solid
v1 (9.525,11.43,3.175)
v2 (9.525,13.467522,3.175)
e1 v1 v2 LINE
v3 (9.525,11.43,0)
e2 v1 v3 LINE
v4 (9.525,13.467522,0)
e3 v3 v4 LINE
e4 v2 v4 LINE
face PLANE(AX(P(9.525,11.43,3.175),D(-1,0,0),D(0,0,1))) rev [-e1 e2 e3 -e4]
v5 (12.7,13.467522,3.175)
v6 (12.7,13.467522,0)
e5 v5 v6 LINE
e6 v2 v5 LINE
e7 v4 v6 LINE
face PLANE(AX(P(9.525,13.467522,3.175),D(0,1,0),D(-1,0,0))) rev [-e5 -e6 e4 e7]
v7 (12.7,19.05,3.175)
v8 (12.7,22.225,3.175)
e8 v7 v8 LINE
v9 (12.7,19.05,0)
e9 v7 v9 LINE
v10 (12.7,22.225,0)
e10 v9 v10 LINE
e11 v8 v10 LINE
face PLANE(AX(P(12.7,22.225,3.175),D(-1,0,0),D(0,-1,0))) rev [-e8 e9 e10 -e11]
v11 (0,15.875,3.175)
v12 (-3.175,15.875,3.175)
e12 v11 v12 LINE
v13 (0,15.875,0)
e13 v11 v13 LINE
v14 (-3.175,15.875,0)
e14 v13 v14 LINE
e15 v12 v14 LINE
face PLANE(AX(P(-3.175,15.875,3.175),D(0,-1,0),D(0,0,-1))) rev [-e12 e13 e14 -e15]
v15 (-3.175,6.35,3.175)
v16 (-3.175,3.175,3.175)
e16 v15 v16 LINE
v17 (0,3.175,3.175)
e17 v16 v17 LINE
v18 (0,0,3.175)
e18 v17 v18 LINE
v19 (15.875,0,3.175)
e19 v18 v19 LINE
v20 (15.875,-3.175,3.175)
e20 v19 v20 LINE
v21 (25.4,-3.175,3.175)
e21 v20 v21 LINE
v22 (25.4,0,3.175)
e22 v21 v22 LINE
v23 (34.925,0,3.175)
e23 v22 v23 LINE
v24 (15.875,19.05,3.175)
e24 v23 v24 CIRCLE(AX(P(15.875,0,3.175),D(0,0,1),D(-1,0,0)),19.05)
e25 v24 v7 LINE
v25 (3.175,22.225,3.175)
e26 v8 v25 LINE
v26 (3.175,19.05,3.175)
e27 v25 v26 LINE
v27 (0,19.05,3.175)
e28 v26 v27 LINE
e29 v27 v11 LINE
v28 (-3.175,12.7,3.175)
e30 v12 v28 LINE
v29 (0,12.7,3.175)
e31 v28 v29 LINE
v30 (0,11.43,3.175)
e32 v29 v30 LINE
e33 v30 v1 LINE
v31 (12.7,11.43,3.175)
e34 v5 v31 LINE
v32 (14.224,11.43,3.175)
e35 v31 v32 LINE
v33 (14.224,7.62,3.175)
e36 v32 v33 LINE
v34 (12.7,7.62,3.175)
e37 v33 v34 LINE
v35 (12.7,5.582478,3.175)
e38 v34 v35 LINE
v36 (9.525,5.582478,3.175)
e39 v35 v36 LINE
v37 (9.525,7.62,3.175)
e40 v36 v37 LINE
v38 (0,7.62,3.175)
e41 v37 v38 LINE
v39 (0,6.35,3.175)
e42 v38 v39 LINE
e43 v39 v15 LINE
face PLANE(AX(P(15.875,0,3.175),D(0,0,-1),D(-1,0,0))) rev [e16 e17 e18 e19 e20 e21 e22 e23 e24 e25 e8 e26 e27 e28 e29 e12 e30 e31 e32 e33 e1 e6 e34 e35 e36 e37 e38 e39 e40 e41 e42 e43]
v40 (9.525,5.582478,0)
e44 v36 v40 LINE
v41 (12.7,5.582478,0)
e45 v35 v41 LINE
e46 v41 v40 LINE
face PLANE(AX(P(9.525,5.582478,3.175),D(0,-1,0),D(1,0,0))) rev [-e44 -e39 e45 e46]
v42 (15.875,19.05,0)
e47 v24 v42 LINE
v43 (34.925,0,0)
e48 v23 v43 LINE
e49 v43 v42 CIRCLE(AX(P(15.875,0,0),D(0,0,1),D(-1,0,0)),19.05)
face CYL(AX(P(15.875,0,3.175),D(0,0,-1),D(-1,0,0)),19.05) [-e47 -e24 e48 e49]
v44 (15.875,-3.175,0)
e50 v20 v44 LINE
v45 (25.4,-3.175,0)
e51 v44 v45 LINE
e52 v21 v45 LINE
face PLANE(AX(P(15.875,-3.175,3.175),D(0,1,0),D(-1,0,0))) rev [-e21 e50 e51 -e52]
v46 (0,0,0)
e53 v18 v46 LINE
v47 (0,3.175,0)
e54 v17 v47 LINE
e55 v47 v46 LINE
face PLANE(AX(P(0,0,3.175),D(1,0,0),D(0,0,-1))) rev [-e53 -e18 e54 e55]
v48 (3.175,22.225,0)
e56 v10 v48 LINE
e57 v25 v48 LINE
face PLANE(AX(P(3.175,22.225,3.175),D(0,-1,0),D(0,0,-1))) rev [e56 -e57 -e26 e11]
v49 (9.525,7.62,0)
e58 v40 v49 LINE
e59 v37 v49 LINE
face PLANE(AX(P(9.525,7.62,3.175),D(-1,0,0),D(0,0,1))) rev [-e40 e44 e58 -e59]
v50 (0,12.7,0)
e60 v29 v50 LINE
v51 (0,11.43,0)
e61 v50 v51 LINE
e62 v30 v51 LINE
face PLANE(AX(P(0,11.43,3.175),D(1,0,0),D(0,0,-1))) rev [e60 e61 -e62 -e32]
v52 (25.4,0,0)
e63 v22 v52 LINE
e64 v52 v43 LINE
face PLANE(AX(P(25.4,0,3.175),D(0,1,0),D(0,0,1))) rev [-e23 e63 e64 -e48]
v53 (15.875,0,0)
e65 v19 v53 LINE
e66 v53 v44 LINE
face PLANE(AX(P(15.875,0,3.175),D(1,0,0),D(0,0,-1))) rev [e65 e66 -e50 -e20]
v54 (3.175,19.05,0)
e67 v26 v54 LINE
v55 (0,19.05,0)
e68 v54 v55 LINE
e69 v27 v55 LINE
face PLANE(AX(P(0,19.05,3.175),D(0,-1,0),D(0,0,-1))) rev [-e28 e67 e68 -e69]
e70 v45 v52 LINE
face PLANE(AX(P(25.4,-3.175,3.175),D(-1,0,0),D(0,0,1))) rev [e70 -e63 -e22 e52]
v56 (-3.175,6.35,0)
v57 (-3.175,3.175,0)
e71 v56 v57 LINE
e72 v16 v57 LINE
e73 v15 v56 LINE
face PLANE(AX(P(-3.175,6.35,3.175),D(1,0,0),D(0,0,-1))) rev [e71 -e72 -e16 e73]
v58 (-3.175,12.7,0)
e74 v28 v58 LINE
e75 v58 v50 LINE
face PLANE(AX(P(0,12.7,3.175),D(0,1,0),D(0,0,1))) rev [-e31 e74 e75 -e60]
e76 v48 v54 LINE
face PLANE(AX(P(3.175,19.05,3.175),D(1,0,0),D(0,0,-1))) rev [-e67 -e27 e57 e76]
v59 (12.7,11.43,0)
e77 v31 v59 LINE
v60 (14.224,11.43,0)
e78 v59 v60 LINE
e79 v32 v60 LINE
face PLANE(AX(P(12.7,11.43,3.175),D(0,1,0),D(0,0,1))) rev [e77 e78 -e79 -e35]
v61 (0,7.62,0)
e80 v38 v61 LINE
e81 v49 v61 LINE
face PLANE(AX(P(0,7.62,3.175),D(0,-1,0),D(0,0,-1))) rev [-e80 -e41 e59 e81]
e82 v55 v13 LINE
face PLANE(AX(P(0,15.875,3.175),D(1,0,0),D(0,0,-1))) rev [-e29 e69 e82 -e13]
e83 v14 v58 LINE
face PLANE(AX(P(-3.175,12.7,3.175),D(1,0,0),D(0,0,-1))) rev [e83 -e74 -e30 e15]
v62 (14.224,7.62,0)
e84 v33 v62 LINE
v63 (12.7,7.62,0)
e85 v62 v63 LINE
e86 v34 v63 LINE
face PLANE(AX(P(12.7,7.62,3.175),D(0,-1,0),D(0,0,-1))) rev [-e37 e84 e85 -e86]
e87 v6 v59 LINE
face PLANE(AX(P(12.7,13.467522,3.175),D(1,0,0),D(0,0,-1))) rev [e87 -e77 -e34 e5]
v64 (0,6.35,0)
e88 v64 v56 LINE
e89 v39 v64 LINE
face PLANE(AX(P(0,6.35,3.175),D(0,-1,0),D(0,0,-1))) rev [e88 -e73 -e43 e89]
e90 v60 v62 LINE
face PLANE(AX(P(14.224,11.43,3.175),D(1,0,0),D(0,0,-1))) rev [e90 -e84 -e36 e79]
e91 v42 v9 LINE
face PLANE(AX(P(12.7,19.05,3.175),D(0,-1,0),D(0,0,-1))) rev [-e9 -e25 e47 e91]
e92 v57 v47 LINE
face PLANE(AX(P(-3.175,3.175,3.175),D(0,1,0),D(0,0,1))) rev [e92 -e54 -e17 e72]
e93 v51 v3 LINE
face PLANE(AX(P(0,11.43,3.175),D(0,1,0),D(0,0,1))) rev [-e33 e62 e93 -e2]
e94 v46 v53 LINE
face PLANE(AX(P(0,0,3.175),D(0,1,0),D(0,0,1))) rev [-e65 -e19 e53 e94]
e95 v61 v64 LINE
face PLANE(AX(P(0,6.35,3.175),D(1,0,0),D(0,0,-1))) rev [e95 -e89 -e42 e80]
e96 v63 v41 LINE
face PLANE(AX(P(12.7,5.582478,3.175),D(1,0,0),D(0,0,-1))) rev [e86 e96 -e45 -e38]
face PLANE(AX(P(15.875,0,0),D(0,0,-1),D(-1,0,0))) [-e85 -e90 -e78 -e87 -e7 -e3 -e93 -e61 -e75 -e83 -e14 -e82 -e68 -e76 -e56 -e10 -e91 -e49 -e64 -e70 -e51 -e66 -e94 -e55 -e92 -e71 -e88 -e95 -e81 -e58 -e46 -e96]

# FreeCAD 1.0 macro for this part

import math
import FreeCAD as App
import Part
import Sketcher
from FreeCAD import Vector
Q = App.Units.Quantity

doc = App.newDocument("Part")
body = doc.addObject("PartDesign::Body", "Body")

# Sketch on XY plane
sketch1 = body.newObject("Sketcher::SketchObject", "Sketch")
sketch1.AttachmentSupport = (doc.getObject("XY_Plane"), [""])
sketch1.MapMode = "FlatFace"
sketch1.addGeometry(Part.LineSegment(Vector(0, 3.2, 0), Vector(0, 0, 0)), False)
sketch1.addGeometry(Part.LineSegment(Vector(0, 0, 0), Vector(15.9, 0, 0)), False)
sketch1.addGeometry(Part.LineSegment(Vector(15.9, 0, 0), Vector(15.9, -3.2, 0)), False)
sketch1.addGeometry(Part.LineSegment(Vector(15.9, -3.2, 0), Vector(25.4, -3.2, 0)), False)
sketch1.addGeometry(Part.LineSegment(Vector(25.4, -3.2, 0), Vector(25.4, 0, 0)), False)
sketch1.addGeometry(Part.LineSegment(Vector(25.4, 0, 0), Vector(34.9, 0, 0)), False)
sketch1.addGeometry(Part.ArcOfCircle(Part.Circle(Vector(15.9, 0, 0), Vector(0, 0, 1), 19), math.radians(0), math.radians(90)), False)
sketch1.addGeometry(Part.LineSegment(Vector(15.9, 19.1, 0), Vector(12.7, 19.1, 0)), False)
sketch1.addGeometry(Part.LineSegment(Vector(12.7, 19.1, 0), Vector(12.7, 22.2, 0)), False)
sketch1.addGeometry(Part.LineSegment(Vector(12.7, 22.2, 0), Vector(3.2, 22.2, 0)), False)
sketch1.addGeometry(Part.LineSegment(Vector(3.2, 22.2, 0), Vector(3.2, 19.1, 0)), False)
sketch1.addGeometry(Part.LineSegment(Vector(3.2, 19.1, 0), Vector(0, 19.1, 0)), False)
sketch1.addGeometry(Part.LineSegment(Vector(0, 19.1, 0), Vector(0, 15.9, 0)), False)
sketch1.addGeometry(Part.LineSegment(Vector(0, 15.9, 0), Vector(-3.2, 15.9, 0)), False)
sketch1.addGeometry(Part.LineSegment(Vector(-3.2, 15.9, 0), Vector(-3.2, 12.7, 0)), False)
sketch1.addGeometry(Part.LineSegment(Vector(-3.2, 12.7, 0), Vector(0, 12.7, 0)), False)
sketch1.addGeometry(Part.LineSegment(Vector(0, 12.7, 0), Vector(0, 11.4, 0)), False)
sketch1.addGeometry(Part.LineSegment(Vector(0, 11.4, 0), Vector(9.5, 11.4, 0)), False)
sketch1.addGeometry(Part.LineSegment(Vector(9.5, 11.4, 0), Vector(9.5, 13.5, 0)), False)
sketch1.addGeometry(Part.LineSegment(Vector(9.5, 13.5, 0), Vector(12.7, 13.5, 0)), False)
sketch1.addGeometry(Part.LineSegment(Vector(12.7, 13.5, 0), Vector(12.7, 11.4, 0)), False)
sketch1.addGeometry(Part.LineSegment(Vector(12.7, 11.4, 0), Vector(14.2, 11.4, 0)), False)
sketch1.addGeometry(Part.LineSegment(Vector(14.2, 11.4, 0), Vector(14.2, 7.6, 0)), False)
sketch1.addGeometry(Part.LineSegment(Vector(14.2, 7.6, 0), Vector(12.7, 7.6, 0)), False)
sketch1.addGeometry(Part.LineSegment(Vector(12.7, 7.6, 0), Vector(12.7, 5.6, 0)), False)
sketch1.addGeometry(Part.LineSegment(Vector(12.7, 5.6, 0), Vector(9.5, 5.6, 0)), False)
sketch1.addGeometry(Part.LineSegment(Vector(9.5, 5.6, 0), Vector(9.5, 7.6, 0)), False)
sketch1.addGeometry(Part.LineSegment(Vector(9.5, 7.6, 0), Vector(0, 7.6, 0)), False)
sketch1.addGeometry(Part.LineSegment(Vector(0, 7.6, 0), Vector(0, 6.3, 0)), False)
sketch1.addGeometry(Part.LineSegment(Vector(0, 6.3, 0), Vector(-3.2, 6.3, 0)), False)
sketch1.addGeometry(Part.LineSegment(Vector(-3.2, 6.3, 0), Vector(-3.2, 3.2, 0)), False)
sketch1.addGeometry(Part.LineSegment(Vector(-3.2, 3.2, 0), Vector(0, 3.2, 0)), False)
sketch1.addConstraint(Sketcher.Constraint("Coincident", 0, 2, 1, 1))
sketch1.addConstraint(Sketcher.Constraint("Coincident", 1, 2, 2, 1))
sketch1.addConstraint(Sketcher.Constraint("Coincident", 2, 2, 3, 1))
sketch1.addConstraint(Sketcher.Constraint("Coincident", 3, 2, 4, 1))
sketch1.addConstraint(Sketcher.Constraint("Coincident", 4, 2, 5, 1))
sketch1.addConstraint(Sketcher.Constraint("Coincident", 5, 2, 6, 1))
sketch1.addConstraint(Sketcher.Constraint("Tangent", 6, 2, 7, 1))
sketch1.addConstraint(Sketcher.Constraint("Coincident", 7, 2, 8, 1))
sketch1.addConstraint(Sketcher.Constraint("Coincident", 8, 2, 9, 1))
sketch1.addConstraint(Sketcher.Constraint("Coincident", 9, 2, 10, 1))
sketch1.addConstraint(Sketcher.Constraint("Coincident", 10, 2, 11, 1))
sketch1.addConstraint(Sketcher.Constraint("Coincident", 11, 2, 12, 1))
sketch1.addConstraint(Sketcher.Constraint("Coincident", 12, 2, 13, 1))
sketch1.addConstraint(Sketcher.Constraint("Coincident", 13, 2, 14, 1))
sketch1.addConstraint(Sketcher.Constraint("Coincident", 14, 2, 15, 1))
sketch1.addConstraint(Sketcher.Constraint("Coincident", 15, 2, 16, 1))
sketch1.addConstraint(Sketcher.Constraint("Coincident", 16, 2, 17, 1))
sketch1.addConstraint(Sketcher.Constraint("Coincident", 17, 2, 18, 1))
sketch1.addConstraint(Sketcher.Constraint("Coincident", 18, 2, 19, 1))
sketch1.addConstraint(Sketcher.Constraint("Coincident", 19, 2, 20, 1))
sketch1.addConstraint(Sketcher.Constraint("Coincident", 20, 2, 21, 1))
sketch1.addConstraint(Sketcher.Constraint("Coincident", 21, 2, 22, 1))
sketch1.addConstraint(Sketcher.Constraint("Coincident", 22, 2, 23, 1))
sketch1.addConstraint(Sketcher.Constraint("Coincident", 23, 2, 24, 1))
sketch1.addConstraint(Sketcher.Constraint("Coincident", 24, 2, 25, 1))
sketch1.addConstraint(Sketcher.Constraint("Coincident", 25, 2, 26, 1))
sketch1.addConstraint(Sketcher.Constraint("Coincident", 26, 2, 27, 1))
sketch1.addConstraint(Sketcher.Constraint("Coincident", 27, 2, 28, 1))
sketch1.addConstraint(Sketcher.Constraint("Coincident", 28, 2, 29, 1))
sketch1.addConstraint(Sketcher.Constraint("Coincident", 29, 2, 30, 1))
sketch1.addConstraint(Sketcher.Constraint("Coincident", 30, 2, 31, 1))
sketch1.addConstraint(Sketcher.Constraint("Coincident", 31, 2, 0, 1))
sketch1.addConstraint(Sketcher.Constraint("Vertical", 0))
sketch1.addConstraint(Sketcher.Constraint("Horizontal", 1))
sketch1.addConstraint(Sketcher.Constraint("Vertical", 2))
sketch1.addConstraint(Sketcher.Constraint("Horizontal", 3))
sketch1.addConstraint(Sketcher.Constraint("Vertical", 4))
sketch1.addConstraint(Sketcher.Constraint("Horizontal", 5))
sketch1.addConstraint(Sketcher.Constraint("Horizontal", 7))
sketch1.addConstraint(Sketcher.Constraint("Vertical", 8))
sketch1.addConstraint(Sketcher.Constraint("Horizontal", 9))
sketch1.addConstraint(Sketcher.Constraint("Vertical", 10))
sketch1.addConstraint(Sketcher.Constraint("Horizontal", 11))
sketch1.addConstraint(Sketcher.Constraint("Vertical", 12))
sketch1.addConstraint(Sketcher.Constraint("Horizontal", 13))
sketch1.addConstraint(Sketcher.Constraint("Vertical", 14))
sketch1.addConstraint(Sketcher.Constraint("Horizontal", 15))
sketch1.addConstraint(Sketcher.Constraint("Vertical", 16))
sketch1.addConstraint(Sketcher.Constraint("Horizontal", 17))
sketch1.addConstraint(Sketcher.Constraint("Vertical", 18))
sketch1.addConstraint(Sketcher.Constraint("Horizontal", 19))
sketch1.addConstraint(Sketcher.Constraint("Vertical", 20))
sketch1.addConstraint(Sketcher.Constraint("Horizontal", 21))
sketch1.addConstraint(Sketcher.Constraint("Vertical", 22))
sketch1.addConstraint(Sketcher.Constraint("Horizontal", 23))
sketch1.addConstraint(Sketcher.Constraint("Vertical", 24))
sketch1.addConstraint(Sketcher.Constraint("Horizontal", 25))
sketch1.addConstraint(Sketcher.Constraint("Vertical", 26))
sketch1.addConstraint(Sketcher.Constraint("Horizontal", 27))
sketch1.addConstraint(Sketcher.Constraint("Vertical", 28))
sketch1.addConstraint(Sketcher.Constraint("Horizontal", 29))
sketch1.addConstraint(Sketcher.Constraint("Vertical", 30))
sketch1.addConstraint(Sketcher.Constraint("Horizontal", 31))
sketch1.addConstraint(Sketcher.Constraint("Coincident", 0, 2, -1, 1))
sketch1.addConstraint(Sketcher.Constraint("Coincident", 1, 2, 6, 3))
sketch1.addConstraint(Sketcher.Constraint("PointOnObject", 4, 2, -1))
sketch1.addConstraint(Sketcher.Constraint("PointOnObject", 11, 2, -2))
sketch1.addConstraint(Sketcher.Constraint("PointOnObject", 15, 2, -2))
sketch1.addConstraint(Sketcher.Constraint("PointOnObject", 27, 2, -2))
sketch1.addConstraint(Sketcher.Constraint("Horizontal", 7, 2, 10, 2))
sketch1.addConstraint(Sketcher.Constraint("Horizontal", 17, 2, 20, 2))
sketch1.addConstraint(Sketcher.Constraint("Horizontal", 23, 2, 26, 2))
sketch1.addConstraint(Sketcher.Constraint("Vertical", 8, 2, 19, 2))
sketch1.addConstraint(Sketcher.Constraint("Vertical", 20, 2, 23, 2))
sketch1.addConstraint(Sketcher.Constraint("Vertical", 18, 2, 25, 2))
sketch1.addConstraint(Sketcher.Constraint("Vertical", 14, 2, 29, 2))
sketch1.addConstraint(Sketcher.Constraint("Equal", 3, 5))
sketch1.addConstraint(Sketcher.Constraint("Equal", 5, 9))
sketch1.addConstraint(Sketcher.Constraint("Equal", 7, 11))
sketch1.addConstraint(Sketcher.Constraint("Equal", 11, 13))
sketch1.addConstraint(Sketcher.Constraint("Equal", 9, 17))
sketch1.addConstraint(Sketcher.Constraint("Equal", 31, 0))
sketch1.addConstraint(Sketcher.Constraint("Equal", 0, 2))
sketch1.addConstraint(Sketcher.Constraint("Equal", 4, 8))
sketch1.addConstraint(Sketcher.Constraint("Equal", 10, 12))
sketch1.addConstraint(Sketcher.Constraint("Equal", 12, 14))
sketch1.addConstraint(Sketcher.Constraint("Equal", 20, 24))
sketch1.addConstraint(Sketcher.Constraint("Equal", 16, 28))
sketch1.addConstraint(Sketcher.Constraint("Equal", 14, 30))
sketch1.addConstraint(Sketcher.Constraint("Radius", 6, Q("0.75 in")))
sketch1.addConstraint(Sketcher.Constraint("DistanceX", -1, 1, 3, 2, Q("1 in")))
sketch1.addConstraint(Sketcher.Constraint("DistanceX", 21, 1, 21, 2, Q("0.06 in")))
sketch1.addConstraint(Sketcher.Constraint("DistanceY", 16, 2, 16, 1, Q("0.05 in")))
sketch1.addConstraint(Sketcher.Constraint("DistanceY", 18, 1, 18, 2, 2.037522))
pad1 = body.newObject("PartDesign::Pad", "Pad")
pad1.Profile = sketch1
pad1.Length = Q("0.125 in")

doc.recompute()
